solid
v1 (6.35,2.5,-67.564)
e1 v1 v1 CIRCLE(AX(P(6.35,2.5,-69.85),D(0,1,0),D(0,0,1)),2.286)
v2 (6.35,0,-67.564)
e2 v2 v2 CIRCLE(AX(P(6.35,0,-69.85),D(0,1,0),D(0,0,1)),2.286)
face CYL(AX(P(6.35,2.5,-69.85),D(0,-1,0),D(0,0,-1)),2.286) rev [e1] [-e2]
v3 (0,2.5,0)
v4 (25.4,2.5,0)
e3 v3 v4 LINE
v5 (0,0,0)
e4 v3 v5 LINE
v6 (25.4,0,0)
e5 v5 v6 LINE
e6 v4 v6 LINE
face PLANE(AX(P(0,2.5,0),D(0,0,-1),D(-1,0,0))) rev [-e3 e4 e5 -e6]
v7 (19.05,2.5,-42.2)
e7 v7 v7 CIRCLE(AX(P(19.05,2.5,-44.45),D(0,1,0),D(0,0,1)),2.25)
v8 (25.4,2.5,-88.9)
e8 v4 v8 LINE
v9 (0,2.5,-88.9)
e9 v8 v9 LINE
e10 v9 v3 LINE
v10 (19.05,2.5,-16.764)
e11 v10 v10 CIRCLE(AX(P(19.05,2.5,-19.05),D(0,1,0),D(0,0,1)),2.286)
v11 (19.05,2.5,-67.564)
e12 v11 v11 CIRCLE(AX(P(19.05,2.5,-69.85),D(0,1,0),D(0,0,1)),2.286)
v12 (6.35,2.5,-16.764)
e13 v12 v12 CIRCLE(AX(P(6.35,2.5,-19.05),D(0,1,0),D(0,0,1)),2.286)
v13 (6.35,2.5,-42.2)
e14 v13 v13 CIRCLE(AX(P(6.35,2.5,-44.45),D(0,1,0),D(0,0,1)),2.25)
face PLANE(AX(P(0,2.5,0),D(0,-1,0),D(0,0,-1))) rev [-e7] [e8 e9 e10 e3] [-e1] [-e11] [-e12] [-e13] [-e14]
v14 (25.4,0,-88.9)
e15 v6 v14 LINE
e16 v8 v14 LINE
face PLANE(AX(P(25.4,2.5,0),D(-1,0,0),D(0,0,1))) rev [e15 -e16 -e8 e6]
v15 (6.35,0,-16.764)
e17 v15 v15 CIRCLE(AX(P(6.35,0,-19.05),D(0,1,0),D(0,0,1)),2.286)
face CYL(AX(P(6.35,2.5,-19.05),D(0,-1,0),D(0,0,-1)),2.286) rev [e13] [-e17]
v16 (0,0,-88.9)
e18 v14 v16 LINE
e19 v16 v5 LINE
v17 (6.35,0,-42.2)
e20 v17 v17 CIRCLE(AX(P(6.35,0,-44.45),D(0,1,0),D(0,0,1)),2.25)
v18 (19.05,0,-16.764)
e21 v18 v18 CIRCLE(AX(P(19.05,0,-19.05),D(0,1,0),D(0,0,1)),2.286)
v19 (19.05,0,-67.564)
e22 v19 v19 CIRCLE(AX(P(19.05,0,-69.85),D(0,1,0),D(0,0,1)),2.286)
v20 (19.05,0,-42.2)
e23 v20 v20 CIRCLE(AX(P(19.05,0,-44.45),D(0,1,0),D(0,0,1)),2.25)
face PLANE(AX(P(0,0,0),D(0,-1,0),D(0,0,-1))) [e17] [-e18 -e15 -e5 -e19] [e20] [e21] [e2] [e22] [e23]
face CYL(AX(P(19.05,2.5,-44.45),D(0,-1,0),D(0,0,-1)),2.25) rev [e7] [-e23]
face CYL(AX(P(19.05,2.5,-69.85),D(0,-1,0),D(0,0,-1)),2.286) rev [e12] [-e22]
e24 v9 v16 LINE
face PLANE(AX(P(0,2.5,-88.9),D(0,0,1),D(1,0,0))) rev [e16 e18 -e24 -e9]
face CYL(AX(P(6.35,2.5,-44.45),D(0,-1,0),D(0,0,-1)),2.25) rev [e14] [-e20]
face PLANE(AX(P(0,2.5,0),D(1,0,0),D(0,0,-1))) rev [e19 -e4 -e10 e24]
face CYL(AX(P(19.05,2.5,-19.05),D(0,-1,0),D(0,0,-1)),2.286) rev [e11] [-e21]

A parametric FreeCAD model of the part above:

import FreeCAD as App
import Part
import Sketcher
Q = App.Units.Quantity

doc = App.newDocument("Part")
params = doc.addObject("Spreadsheet::Sheet", "Params")
for row, (alias, value) in enumerate([
    ("sketch1_diameter", "0.18 in"),
    ("sketch1_width", "1 in"),
    ("sketch1_height", "3.5 in"),
    ("pad1_length", "2.5 mm"),
], start=1):
    params.set(f"A{row}", alias)
    params.set(f"B{row}", "=" + value)
    params.setAlias(f"B{row}", alias)

body = doc.addObject("PartDesign::Body", "Body")

# Sketch on XZ plane
sketch1 = body.newObject("Sketcher::SketchObject", "Sketch")
sketch1.AttachmentSupport = (doc.getObject("XZ_Plane"), [""])
sketch1.MapMode = "FlatFace"
sketch1.addGeometry(Part.LineSegment(App.Vector(0, -88.9, 0), App.Vector(0, 0, 0)), False)
sketch1.addGeometry(Part.LineSegment(App.Vector(0, 0, 0), App.Vector(25.4, 0, 0)), False)
sketch1.addGeometry(Part.LineSegment(App.Vector(25.4, 0, 0), App.Vector(25.4, -88.9, 0)), False)
sketch1.addGeometry(Part.LineSegment(App.Vector(25.4, -88.9, 0), App.Vector(0, -88.9, 0)), False)
sketch1.addGeometry(Part.Circle(App.Vector(6.3, -19.1, 0), App.Vector(0, 0, 1), 2.3), False)
sketch1.addGeometry(Part.Circle(App.Vector(19.1, -19.1, 0), App.Vector(0, 0, 1), 2.3), False)
sketch1.addGeometry(Part.Circle(App.Vector(6.3, -44.5, 0), App.Vector(0, 0, 1), 2.2), False)
sketch1.addGeometry(Part.Circle(App.Vector(6.3, -69.8, 0), App.Vector(0, 0, 1), 2.3), False)
sketch1.addGeometry(Part.Circle(App.Vector(19.1, -44.5, 0), App.Vector(0, 0, 1), 2.2), False)
sketch1.addGeometry(Part.Circle(App.Vector(19.1, -69.8, 0), App.Vector(0, 0, 1), 2.3), False)
sketch1.addConstraint(Sketcher.Constraint("Coincident", 0, 2, 1, 1))
sketch1.addConstraint(Sketcher.Constraint("Coincident", 1, 2, 2, 1))
sketch1.addConstraint(Sketcher.Constraint("Coincident", 2, 2, 3, 1))
sketch1.addConstraint(Sketcher.Constraint("Coincident", 3, 2, 0, 1))
sketch1.addConstraint(Sketcher.Constraint("Vertical", 0))
sketch1.addConstraint(Sketcher.Constraint("Horizontal", 1))
sketch1.addConstraint(Sketcher.Constraint("Vertical", 2))
sketch1.addConstraint(Sketcher.Constraint("Horizontal", 3))
sketch1.addConstraint(Sketcher.Constraint("Coincident", 0, 2, -1, 1))
sketch1.addConstraint(Sketcher.Constraint("Equal", 4, 5))
sketch1.addConstraint(Sketcher.Constraint("Equal", 5, 7))
sketch1.addConstraint(Sketcher.Constraint("Equal", 6, 8))
sketch1.addConstraint(Sketcher.Constraint("Equal", 7, 9))
sketch1.addConstraint(Sketcher.Constraint("Horizontal", 4, 3, 5, 3))
sketch1.addConstraint(Sketcher.Constraint("Horizontal", 6, 3, 8, 3))
sketch1.addConstraint(Sketcher.Constraint("Horizontal", 7, 3, 9, 3))
sketch1.addConstraint(Sketcher.Constraint("Vertical", 4, 3, 6, 3))
sketch1.addConstraint(Sketcher.Constraint("Vertical", 6, 3, 7, 3))
sketch1.addConstraint(Sketcher.Constraint("Vertical", 5, 3, 8, 3))
sketch1.addConstraint(Sketcher.Constraint("Vertical", 8, 3, 9, 3))
sketch1.addConstraint(Sketcher.Constraint("Diameter", 4, Q("0.18 in")))
sketch1.addConstraint(Sketcher.Constraint("DistanceX", 1, 1, 1, 2, Q("1 in")))
sketch1.addConstraint(Sketcher.Constraint("DistanceY", 0, 1, 0, 2, Q("3.5 in")))
sketch1.addConstraint(Sketcher.Constraint("DistanceY", 6, 3, 4, 3, Q("1 in")))
sketch1.addConstraint(Sketcher.Constraint("DistanceY", 7, 3, 6, 3, Q("1 in")))
sketch1.addConstraint(Sketcher.Constraint("DistanceX", 4, 3, 5, 3, Q("0.5 in")))
sketch1.addConstraint(Sketcher.Constraint("Diameter", 6, 4.5))
sketch1.addConstraint(Sketcher.Constraint("DistanceX", -1, 1, 4, 3, Q("0.25 in")))
sketch1.addConstraint(Sketcher.Constraint("DistanceY", 4, 3, -1, 1, Q("0.75 in")))
sketch1.setExpression("Constraints[20]", "Params.sketch1_diameter")
sketch1.setExpression("Constraints[21]", "Params.sketch1_width")
sketch1.setExpression("Constraints[22]", "Params.sketch1_height")
pad1 = body.newObject("PartDesign::Pad", "Pad")
pad1.Profile = sketch1
pad1.setExpression("Length", "Params.pad1_length")
pad1.Reversed = True

doc.recompute()
